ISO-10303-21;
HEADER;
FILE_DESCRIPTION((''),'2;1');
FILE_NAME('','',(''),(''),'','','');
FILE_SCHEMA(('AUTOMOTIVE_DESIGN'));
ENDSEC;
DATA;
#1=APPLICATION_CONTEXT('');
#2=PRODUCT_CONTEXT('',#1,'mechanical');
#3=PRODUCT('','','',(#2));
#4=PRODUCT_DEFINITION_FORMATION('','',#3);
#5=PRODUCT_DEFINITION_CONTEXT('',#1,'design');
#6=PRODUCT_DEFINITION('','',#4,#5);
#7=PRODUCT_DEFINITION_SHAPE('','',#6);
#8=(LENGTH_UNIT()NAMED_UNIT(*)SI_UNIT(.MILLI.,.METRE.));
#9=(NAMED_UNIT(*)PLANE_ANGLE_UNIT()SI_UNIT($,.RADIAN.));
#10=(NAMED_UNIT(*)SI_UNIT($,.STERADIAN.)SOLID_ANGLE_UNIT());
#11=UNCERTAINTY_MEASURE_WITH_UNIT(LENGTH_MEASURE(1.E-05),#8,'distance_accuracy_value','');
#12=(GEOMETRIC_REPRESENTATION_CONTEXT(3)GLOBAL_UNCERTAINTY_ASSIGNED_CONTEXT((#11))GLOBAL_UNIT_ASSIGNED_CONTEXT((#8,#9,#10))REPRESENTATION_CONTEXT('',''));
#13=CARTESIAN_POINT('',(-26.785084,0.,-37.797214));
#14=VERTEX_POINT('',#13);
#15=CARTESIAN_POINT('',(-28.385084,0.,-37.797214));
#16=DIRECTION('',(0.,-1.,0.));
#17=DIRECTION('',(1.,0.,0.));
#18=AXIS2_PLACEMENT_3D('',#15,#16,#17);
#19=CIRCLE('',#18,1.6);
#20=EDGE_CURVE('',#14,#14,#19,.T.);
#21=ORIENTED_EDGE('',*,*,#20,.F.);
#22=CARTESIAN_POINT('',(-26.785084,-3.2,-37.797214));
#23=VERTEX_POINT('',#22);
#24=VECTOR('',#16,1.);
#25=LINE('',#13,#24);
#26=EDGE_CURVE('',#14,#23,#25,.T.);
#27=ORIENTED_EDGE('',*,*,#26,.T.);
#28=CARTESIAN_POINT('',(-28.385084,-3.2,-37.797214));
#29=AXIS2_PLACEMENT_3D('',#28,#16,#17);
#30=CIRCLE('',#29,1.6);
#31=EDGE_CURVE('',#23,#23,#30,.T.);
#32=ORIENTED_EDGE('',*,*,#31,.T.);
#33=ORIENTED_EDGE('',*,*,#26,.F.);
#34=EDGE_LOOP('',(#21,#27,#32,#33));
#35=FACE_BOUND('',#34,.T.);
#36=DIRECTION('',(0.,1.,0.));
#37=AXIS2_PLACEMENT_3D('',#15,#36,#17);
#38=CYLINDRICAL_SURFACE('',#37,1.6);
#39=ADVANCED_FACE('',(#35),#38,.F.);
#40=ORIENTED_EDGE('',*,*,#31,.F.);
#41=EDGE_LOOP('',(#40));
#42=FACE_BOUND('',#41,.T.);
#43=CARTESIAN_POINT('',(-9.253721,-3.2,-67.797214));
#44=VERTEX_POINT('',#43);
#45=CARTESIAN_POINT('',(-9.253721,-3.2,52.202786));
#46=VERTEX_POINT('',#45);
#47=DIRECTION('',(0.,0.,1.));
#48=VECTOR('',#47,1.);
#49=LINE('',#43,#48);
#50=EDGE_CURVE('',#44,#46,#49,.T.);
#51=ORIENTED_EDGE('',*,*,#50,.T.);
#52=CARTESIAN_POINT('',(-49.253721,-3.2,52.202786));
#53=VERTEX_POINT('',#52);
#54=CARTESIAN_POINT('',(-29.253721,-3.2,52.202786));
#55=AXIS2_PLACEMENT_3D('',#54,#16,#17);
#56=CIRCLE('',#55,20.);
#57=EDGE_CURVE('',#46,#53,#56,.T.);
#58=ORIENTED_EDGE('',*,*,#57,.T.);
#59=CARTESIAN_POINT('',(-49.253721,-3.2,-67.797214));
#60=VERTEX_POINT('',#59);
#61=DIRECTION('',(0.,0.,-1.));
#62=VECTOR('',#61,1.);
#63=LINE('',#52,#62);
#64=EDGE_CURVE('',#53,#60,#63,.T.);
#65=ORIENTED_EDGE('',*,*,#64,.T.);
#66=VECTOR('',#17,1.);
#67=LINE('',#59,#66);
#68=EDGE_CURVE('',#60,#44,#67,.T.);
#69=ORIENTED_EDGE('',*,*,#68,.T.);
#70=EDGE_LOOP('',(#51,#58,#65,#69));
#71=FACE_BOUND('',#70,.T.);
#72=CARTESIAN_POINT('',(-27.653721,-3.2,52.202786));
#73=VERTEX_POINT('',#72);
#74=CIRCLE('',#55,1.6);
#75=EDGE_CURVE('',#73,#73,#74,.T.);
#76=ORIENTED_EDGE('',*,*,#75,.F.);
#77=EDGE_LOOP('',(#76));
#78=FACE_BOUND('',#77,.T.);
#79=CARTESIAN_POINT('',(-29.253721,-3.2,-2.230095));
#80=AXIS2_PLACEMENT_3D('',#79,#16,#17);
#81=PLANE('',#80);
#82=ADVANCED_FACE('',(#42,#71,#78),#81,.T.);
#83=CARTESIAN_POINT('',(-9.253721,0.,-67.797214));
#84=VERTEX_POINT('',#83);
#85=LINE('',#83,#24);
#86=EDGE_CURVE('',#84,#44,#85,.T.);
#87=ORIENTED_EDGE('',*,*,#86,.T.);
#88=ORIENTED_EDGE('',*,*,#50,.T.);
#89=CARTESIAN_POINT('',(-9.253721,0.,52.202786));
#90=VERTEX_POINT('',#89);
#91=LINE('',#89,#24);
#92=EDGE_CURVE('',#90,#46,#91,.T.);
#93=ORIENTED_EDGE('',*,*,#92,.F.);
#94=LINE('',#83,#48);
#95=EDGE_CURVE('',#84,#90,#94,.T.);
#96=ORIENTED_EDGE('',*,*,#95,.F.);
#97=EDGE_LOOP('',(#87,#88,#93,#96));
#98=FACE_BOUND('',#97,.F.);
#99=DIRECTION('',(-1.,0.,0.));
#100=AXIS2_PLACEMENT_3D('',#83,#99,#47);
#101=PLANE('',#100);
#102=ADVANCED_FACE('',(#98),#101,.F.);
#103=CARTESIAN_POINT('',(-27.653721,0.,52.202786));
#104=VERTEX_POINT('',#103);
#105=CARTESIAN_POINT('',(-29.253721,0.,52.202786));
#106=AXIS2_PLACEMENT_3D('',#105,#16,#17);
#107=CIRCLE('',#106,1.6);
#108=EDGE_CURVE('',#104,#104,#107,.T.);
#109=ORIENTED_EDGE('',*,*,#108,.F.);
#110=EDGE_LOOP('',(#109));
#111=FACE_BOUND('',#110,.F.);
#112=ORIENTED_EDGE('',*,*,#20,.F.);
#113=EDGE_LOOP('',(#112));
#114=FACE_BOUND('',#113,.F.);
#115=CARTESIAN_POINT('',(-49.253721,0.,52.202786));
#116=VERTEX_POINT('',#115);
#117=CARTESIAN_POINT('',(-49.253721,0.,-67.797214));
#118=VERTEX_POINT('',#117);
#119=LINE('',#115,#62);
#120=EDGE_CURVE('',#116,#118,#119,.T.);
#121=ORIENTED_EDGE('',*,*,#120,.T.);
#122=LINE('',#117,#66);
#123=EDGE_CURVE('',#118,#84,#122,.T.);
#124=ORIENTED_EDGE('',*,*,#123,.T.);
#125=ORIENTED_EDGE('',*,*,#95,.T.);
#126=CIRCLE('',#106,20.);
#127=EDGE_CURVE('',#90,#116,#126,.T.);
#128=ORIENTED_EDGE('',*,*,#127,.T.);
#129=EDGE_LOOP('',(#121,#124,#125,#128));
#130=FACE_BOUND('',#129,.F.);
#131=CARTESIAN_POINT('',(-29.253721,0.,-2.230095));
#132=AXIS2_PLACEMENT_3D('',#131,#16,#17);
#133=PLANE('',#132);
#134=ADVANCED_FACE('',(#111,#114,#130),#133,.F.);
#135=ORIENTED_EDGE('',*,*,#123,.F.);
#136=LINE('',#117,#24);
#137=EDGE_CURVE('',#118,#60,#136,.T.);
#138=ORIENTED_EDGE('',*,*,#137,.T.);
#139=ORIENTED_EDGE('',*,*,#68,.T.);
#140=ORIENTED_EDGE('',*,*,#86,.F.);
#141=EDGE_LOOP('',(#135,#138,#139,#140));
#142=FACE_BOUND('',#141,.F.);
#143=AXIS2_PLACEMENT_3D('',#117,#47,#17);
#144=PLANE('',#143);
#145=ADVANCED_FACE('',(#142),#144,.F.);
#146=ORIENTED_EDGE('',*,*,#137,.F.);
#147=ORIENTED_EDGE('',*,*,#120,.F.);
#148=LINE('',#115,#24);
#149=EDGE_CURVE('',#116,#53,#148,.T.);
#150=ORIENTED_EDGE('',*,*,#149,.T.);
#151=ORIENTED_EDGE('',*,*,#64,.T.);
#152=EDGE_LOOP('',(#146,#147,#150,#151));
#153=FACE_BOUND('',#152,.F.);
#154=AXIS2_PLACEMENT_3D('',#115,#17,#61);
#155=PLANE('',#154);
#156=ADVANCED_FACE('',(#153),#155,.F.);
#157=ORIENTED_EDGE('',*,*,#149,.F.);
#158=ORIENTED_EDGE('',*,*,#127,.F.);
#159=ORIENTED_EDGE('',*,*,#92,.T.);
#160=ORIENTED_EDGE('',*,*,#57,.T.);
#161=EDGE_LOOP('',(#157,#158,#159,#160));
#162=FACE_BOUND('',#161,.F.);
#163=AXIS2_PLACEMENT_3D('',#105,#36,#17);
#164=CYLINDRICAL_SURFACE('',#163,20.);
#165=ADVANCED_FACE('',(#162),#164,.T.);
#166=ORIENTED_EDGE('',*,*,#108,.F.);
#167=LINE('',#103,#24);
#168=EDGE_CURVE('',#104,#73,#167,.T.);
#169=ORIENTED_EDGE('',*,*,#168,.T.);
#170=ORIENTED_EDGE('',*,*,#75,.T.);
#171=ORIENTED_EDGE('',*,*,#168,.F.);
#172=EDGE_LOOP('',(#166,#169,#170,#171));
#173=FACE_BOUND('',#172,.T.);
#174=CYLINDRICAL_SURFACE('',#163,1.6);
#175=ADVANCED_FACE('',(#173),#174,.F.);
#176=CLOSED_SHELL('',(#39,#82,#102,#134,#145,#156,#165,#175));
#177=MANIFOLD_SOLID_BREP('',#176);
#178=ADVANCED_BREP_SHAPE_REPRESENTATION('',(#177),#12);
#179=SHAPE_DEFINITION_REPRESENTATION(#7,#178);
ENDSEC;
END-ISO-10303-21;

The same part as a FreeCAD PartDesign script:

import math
import FreeCAD as App
import Part
import Sketcher
from FreeCAD import Vector

doc = App.newDocument("Part")
params = doc.addObject("Spreadsheet::Sheet", "Params")
for row, (alias, value) in enumerate([
    ("sketch1_radius", "20 mm"),
    ("sketch1_diameter", "3.2 mm"),
    ("sketch1_height", "120 mm"),
    ("pad1_length", "3.2 mm"),
], start=1):
    params.set(f"A{row}", alias)
    params.set(f"B{row}", "=" + value)
    params.setAlias(f"B{row}", alias)

body = doc.addObject("PartDesign::Body", "Body")

sketch1 = body.newObject("Sketcher::SketchObject", "Sketch")
sketch1.AttachmentSupport = (doc.getObject("XZ_Plane"), [""])
sketch1.MapMode = "FlatFace"
sketch1.addGeometry([
    Part.LineSegment(Vector(-49.253721, -67.797214, 0), Vector(-9.253721, -67.797214, 0)),
    Part.LineSegment(Vector(-9.253721, -67.797214, 0), Vector(-9.253721, 52.202786, 0)),
    Part.ArcOfCircle(Part.Circle(Vector(-29.253721, 52.202786, 0), Vector(0, 0, 1), 20), math.radians(0), math.radians(180)),
    Part.LineSegment(Vector(-49.253721, 52.202786, 0), Vector(-49.253721, -67.797214, 0)),
    Part.Circle(Vector(-28.385084, -37.797214, 0), Vector(0, 0, 1), 1.6),
    Part.Circle(Vector(-29.253721, 52.202786, 0), Vector(0, 0, 1), 1.6),
], False)
sketch1.addConstraint([
    Sketcher.Constraint("Coincident", 0, 2, 1, 1),
    Sketcher.Constraint("Tangent", 1, 2, 2, 1),
    Sketcher.Constraint("Tangent", 2, 2, 3, 1),
    Sketcher.Constraint("Coincident", 3, 2, 0, 1),
    Sketcher.Constraint("Horizontal", 0),
    Sketcher.Constraint("Vertical", 1),
    Sketcher.Constraint("Vertical", 3),
    Sketcher.Constraint("Coincident", 5, 3, 2, 3),
    Sketcher.Constraint("Equal", 4, 5),
    Sketcher.Constraint("Radius", 2, 20.0),
    Sketcher.Constraint("Diameter", 4, 3.2),
    Sketcher.Constraint("DistanceY", 1, 1, 1, 2, 120.0),
    Sketcher.Constraint("DistanceY", 4, 3, 2, 3, 90.0),
    Sketcher.Constraint("DistanceX", 2, 3, -1, 1, 29.253721),
    Sketcher.Constraint("DistanceY", -1, 1, 2, 3, 52.202786),
    Sketcher.Constraint("DistanceX", 4, 3, -1, 1, 28.385084),
])
sketch1.setExpression("Constraints[9]", "Params.sketch1_radius")
sketch1.setExpression("Constraints[10]", "Params.sketch1_diameter")
sketch1.setExpression("Constraints[11]", "Params.sketch1_height")
pad1 = body.newObject("PartDesign::Pad", "Pad")
pad1.Profile = sketch1
pad1.setExpression("Length", "Params.pad1_length")

doc.recompute()
